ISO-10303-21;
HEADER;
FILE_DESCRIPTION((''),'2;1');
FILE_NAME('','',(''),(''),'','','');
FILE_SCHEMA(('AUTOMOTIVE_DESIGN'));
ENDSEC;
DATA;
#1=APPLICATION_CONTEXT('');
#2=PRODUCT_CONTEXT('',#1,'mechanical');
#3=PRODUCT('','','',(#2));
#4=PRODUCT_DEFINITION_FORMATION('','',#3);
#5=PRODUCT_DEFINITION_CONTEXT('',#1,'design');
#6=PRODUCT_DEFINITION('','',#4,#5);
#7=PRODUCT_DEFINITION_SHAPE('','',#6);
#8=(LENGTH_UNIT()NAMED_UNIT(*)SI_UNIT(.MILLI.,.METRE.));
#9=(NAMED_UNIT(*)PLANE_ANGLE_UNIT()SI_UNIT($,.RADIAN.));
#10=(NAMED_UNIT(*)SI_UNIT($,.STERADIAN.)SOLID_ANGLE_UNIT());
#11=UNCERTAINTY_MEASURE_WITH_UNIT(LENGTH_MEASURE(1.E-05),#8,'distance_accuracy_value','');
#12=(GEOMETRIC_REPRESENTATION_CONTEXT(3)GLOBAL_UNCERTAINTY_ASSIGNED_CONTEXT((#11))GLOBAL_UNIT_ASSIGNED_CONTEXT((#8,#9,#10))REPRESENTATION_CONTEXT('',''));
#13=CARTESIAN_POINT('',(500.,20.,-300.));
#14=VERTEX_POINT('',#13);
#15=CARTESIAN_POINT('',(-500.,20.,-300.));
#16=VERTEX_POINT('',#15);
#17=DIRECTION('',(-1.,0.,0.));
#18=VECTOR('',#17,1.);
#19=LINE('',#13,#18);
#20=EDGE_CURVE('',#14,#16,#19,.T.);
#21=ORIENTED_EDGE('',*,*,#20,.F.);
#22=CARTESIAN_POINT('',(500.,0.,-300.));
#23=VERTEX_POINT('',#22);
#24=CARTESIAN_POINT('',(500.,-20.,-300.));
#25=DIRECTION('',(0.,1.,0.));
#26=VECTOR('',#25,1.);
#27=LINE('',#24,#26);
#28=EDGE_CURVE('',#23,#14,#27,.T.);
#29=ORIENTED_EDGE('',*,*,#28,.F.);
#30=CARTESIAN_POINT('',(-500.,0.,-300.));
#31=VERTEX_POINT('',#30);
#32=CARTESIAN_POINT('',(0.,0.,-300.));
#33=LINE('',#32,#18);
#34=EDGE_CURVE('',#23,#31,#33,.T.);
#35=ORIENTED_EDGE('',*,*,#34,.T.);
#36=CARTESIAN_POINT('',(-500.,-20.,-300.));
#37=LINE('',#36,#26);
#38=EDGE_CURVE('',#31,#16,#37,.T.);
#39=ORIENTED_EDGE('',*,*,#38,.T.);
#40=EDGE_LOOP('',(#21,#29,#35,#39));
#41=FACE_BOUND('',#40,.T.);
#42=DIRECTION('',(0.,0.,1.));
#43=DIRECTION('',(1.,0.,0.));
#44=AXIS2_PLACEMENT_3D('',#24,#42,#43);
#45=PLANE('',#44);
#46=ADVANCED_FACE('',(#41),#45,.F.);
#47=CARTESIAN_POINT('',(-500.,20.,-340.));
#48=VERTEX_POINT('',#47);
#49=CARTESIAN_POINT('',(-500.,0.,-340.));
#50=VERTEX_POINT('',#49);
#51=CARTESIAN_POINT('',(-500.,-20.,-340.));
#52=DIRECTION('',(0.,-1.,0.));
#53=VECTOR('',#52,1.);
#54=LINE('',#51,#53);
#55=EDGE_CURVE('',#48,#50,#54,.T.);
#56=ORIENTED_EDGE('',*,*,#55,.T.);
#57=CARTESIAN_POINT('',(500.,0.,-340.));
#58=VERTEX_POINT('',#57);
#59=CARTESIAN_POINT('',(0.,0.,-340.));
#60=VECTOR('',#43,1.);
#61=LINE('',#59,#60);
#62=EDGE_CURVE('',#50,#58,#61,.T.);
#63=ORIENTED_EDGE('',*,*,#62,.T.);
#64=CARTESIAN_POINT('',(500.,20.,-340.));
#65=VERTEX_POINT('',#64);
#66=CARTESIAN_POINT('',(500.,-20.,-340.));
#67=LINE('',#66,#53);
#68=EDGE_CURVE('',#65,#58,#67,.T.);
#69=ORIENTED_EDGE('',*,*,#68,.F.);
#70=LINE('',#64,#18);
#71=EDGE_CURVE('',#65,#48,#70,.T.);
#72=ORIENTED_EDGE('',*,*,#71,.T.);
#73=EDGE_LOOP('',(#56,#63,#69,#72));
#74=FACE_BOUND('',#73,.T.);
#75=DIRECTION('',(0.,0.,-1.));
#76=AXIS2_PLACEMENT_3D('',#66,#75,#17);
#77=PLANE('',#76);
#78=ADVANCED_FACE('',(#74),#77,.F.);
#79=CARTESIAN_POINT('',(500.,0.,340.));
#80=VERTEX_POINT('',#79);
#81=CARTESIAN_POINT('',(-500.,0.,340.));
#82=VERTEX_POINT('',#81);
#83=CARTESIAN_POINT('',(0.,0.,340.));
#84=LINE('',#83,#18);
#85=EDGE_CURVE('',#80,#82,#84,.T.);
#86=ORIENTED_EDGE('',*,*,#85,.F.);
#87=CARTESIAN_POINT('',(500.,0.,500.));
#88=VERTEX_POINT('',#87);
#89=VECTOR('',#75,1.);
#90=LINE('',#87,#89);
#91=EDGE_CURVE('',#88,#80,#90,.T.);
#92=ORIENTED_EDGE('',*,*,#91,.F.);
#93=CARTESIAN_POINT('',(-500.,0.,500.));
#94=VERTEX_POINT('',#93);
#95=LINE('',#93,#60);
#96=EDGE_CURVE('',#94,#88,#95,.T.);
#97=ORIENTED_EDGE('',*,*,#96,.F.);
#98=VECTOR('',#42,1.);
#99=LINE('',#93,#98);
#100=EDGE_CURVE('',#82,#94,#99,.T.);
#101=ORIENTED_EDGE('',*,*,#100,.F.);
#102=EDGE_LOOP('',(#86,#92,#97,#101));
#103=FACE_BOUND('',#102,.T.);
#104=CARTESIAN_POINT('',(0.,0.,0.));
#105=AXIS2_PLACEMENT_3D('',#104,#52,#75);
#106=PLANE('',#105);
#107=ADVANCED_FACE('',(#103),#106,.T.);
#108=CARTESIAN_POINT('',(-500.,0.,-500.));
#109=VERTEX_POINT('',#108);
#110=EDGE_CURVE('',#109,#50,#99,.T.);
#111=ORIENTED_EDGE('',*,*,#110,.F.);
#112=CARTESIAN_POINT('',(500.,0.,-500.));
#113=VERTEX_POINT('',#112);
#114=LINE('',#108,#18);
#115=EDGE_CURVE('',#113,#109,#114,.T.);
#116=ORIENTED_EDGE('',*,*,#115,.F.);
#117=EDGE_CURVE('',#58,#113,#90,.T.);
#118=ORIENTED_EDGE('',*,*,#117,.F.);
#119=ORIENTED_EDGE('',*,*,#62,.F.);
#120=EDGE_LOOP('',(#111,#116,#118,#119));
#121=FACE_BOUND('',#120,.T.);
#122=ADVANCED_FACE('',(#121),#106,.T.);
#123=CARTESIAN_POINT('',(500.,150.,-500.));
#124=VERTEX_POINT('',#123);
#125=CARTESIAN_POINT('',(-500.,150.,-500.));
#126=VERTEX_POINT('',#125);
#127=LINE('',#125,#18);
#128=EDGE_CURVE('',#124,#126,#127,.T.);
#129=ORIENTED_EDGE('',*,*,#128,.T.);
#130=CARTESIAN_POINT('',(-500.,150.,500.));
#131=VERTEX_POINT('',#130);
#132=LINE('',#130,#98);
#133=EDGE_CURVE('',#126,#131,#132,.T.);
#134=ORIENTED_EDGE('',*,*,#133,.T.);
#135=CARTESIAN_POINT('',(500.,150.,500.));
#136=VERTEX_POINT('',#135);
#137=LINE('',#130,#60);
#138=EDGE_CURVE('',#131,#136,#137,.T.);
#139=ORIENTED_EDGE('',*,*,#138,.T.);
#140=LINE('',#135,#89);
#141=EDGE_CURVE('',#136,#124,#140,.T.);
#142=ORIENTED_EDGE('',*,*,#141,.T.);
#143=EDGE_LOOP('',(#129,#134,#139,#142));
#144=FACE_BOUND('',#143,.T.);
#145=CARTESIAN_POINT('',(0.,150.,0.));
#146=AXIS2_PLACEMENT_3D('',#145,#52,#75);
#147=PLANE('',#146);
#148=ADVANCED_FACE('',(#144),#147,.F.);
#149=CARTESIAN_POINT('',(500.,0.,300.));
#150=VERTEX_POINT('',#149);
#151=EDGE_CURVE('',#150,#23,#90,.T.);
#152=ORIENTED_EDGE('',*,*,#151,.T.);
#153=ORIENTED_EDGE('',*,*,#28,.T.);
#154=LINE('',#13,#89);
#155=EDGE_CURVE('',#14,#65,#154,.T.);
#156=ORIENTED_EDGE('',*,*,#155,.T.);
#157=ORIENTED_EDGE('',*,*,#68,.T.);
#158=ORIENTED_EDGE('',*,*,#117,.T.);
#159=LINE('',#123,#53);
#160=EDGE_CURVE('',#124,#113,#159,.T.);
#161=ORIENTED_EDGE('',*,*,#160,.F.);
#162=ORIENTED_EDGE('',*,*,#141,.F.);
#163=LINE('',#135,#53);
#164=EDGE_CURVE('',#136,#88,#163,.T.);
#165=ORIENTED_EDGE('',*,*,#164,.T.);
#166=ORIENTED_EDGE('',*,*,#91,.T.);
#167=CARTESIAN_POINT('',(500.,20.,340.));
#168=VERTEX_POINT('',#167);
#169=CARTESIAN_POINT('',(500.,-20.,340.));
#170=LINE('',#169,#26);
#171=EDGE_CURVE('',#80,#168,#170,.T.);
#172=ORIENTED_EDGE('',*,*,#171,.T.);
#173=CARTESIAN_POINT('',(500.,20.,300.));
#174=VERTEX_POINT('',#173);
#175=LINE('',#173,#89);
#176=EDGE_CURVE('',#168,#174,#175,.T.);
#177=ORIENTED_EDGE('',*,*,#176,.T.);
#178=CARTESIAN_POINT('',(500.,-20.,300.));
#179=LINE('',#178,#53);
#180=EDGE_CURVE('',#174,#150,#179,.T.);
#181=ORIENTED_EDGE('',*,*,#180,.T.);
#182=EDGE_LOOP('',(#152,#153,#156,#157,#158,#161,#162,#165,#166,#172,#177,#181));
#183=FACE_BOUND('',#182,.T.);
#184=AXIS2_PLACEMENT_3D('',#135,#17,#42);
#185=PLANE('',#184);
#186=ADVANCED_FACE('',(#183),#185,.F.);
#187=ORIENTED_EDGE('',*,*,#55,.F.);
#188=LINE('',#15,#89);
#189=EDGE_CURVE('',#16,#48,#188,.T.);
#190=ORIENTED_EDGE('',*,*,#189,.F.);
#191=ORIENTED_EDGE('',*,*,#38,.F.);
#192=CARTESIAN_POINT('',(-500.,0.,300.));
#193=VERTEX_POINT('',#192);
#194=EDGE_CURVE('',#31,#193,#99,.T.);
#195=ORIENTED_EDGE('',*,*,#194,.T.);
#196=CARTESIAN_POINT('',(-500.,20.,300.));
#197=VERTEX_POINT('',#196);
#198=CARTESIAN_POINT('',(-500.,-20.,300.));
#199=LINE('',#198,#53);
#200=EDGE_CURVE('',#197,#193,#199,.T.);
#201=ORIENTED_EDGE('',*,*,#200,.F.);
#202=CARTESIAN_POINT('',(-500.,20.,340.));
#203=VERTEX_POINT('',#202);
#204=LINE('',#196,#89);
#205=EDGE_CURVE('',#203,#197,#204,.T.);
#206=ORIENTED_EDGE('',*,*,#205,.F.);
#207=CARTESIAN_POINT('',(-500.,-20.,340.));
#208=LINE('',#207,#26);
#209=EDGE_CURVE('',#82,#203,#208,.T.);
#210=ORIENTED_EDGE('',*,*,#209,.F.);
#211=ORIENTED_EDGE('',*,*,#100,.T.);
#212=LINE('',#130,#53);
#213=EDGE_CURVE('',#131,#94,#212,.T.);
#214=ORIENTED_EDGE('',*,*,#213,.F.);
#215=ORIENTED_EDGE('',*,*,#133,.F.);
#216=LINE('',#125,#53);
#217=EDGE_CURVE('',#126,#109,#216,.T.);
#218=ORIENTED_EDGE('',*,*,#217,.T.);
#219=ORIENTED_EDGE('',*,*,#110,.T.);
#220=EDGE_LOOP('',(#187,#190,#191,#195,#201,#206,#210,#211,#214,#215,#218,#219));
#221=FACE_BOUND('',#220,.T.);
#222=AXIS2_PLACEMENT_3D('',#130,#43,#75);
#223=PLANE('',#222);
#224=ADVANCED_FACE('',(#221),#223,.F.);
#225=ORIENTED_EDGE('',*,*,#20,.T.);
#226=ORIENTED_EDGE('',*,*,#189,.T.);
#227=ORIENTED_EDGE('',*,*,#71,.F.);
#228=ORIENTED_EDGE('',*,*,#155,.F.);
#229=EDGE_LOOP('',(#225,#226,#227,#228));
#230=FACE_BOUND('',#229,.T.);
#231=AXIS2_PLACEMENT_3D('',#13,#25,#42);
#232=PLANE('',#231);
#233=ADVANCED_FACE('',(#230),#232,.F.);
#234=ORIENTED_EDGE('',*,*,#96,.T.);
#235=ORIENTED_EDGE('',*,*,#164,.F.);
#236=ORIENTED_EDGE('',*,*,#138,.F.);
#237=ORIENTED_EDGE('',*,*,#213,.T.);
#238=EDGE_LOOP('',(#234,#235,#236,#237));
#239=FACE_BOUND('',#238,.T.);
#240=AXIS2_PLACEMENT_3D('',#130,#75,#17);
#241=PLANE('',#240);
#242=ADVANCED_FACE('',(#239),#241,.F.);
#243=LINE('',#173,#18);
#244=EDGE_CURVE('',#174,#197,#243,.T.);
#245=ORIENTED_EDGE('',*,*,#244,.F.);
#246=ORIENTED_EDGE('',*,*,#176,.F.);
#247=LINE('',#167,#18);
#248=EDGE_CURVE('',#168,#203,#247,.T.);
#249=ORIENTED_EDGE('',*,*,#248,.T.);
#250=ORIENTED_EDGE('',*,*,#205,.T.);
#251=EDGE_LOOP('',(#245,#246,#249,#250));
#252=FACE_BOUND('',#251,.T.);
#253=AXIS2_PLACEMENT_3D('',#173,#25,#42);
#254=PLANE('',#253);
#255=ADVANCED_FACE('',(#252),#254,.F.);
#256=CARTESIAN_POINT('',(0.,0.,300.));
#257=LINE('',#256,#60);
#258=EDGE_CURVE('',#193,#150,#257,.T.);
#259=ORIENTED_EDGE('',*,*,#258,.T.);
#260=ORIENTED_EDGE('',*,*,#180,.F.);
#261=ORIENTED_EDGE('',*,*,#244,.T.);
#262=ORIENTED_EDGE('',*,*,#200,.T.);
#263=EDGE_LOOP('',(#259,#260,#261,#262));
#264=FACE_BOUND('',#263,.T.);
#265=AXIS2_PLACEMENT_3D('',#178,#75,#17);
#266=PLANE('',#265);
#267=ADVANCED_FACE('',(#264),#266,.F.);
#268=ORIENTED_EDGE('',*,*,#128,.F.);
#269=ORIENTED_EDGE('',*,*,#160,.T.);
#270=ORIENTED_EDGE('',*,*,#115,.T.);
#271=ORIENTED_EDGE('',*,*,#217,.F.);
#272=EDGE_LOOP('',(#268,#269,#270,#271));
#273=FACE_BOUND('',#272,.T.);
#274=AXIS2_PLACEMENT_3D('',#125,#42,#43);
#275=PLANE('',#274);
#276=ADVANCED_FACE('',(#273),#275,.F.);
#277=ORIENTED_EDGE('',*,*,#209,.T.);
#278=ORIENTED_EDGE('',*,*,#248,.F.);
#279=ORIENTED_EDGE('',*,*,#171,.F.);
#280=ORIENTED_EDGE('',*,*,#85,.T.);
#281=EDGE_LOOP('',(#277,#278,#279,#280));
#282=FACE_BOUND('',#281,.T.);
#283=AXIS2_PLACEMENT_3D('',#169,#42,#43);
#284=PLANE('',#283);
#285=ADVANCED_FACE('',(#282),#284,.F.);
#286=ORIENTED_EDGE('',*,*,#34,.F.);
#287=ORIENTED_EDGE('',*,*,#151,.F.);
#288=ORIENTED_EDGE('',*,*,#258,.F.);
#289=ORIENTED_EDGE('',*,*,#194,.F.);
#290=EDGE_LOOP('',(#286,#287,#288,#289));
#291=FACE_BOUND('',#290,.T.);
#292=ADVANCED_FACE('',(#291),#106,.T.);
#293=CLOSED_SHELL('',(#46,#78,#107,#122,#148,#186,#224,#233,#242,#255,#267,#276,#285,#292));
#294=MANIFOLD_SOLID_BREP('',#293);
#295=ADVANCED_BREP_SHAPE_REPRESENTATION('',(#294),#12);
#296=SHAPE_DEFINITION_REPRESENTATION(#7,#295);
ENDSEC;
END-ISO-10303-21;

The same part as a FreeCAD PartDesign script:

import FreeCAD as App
import Part
import Sketcher
from FreeCAD import Vector
Q = App.Units.Quantity


def add_polygon(sketch, points):
    """Adds a closed chain of lines whose ends are joined by coincident constraints."""
    first, n = sketch.GeometryCount, len(points)
    for a, b in zip(points, points[1:] + points[:1]):
        sketch.addGeometry(Part.LineSegment(App.Vector(*a, 0), App.Vector(*b, 0)), False)
    for i in range(n):
        sketch.addConstraint(Sketcher.Constraint("Coincident", first + i, 2, first + (i + 1) % n, 1))

doc = App.newDocument("Part")
params = doc.addObject("Spreadsheet::Sheet", "Params")
for row, (alias, value) in enumerate([
    ("sketch1_width", "1000 mm"),
    ("pad1_length", "150 mm"),
    ("sketch2_width", "40 mm"),
], start=1):
    params.set(f"A{row}", alias)
    params.set(f"B{row}", "=" + value)
    params.setAlias(f"B{row}", alias)

body = doc.addObject("PartDesign::Body", "Body")

sketch1 = doc.addObject("Sketcher::SketchObject", "Sketch")
body.addObject(sketch1)
sketch1.AttachmentSupport = (doc.XZ_Plane, [""])
sketch1.MapMode = "FlatFace"
add_polygon(sketch1, [(-500, -500), (-500, 500), (500, 500), (500, -500)])
sketch1.addConstraint(Sketcher.Constraint("Vertical", 0))
sketch1.addConstraint(Sketcher.Constraint("Horizontal", 1))
sketch1.addConstraint(Sketcher.Constraint("Vertical", 2))
sketch1.addConstraint(Sketcher.Constraint("Horizontal", 3))
sketch1.addConstraint(Sketcher.Constraint("Symmetric", 0, 2, 2, 2, -1, 1))
sketch1.addConstraint(Sketcher.Constraint("Equal", 3, 0))
sketch1.addConstraint(Sketcher.Constraint("DistanceX", 1, 1, 1, 2, Q("1000 mm")))
sketch1.setExpression("Constraints[10]", "Params.sketch1_width")
pad1 = doc.addObject("PartDesign::Pad", "Pad")
body.addObject(pad1)
pad1.Profile = sketch1
pad1.setExpression("Length", "Params.pad1_length")
pad1.Reversed = True

sketch2 = doc.addObject("Sketcher::SketchObject", "Sketch001")
body.addObject(sketch2)
sketch2.AttachmentSupport = (doc.YZ_Plane, [""])
sketch2.MapMode = "FlatFace"
sketch2.AttachmentOffset = App.Placement(Vector(0, 0, -500), App.Rotation())
add_polygon(sketch2, [(20, 300), (-20, 300), (-20, 340), (20, 340)])
add_polygon(sketch2, [(20, -340), (-20, -340), (-20, -300), (20, -300)])
sketch2.addConstraint(Sketcher.Constraint("Horizontal", 0))
sketch2.addConstraint(Sketcher.Constraint("Vertical", 1))
sketch2.addConstraint(Sketcher.Constraint("Horizontal", 2))
sketch2.addConstraint(Sketcher.Constraint("Vertical", 3))
sketch2.addConstraint(Sketcher.Constraint("Horizontal", 4))
sketch2.addConstraint(Sketcher.Constraint("Vertical", 5))
sketch2.addConstraint(Sketcher.Constraint("Horizontal", 6))
sketch2.addConstraint(Sketcher.Constraint("Vertical", 7))
sketch2.addConstraint(Sketcher.Constraint("Symmetric", 2, 2, 4, 2, -1, 1))
sketch2.addConstraint(Sketcher.Constraint("Symmetric", 0, 2, 6, 2, -1, 1))
sketch2.addConstraint(Sketcher.Constraint("Vertical", 1, 2, 4, 2))
sketch2.addConstraint(Sketcher.Constraint("Equal", 6, 1))
sketch2.addConstraint(Sketcher.Constraint("DistanceX", 0, 2, 0, 1, Q("40 mm")))
sketch2.addConstraint(Sketcher.Constraint("DistanceY", -1, 1, 0, 2, Q("300 mm")))
sketch2.setExpression("Constraints[20]", "Params.sketch2_width")
pocket1 = doc.addObject("PartDesign::Pocket", "Pocket")
body.addObject(pocket1)
pocket1.Profile = sketch2
pocket1.Type = "ThroughAll"
pocket1.Reversed = True

doc.recompute()
